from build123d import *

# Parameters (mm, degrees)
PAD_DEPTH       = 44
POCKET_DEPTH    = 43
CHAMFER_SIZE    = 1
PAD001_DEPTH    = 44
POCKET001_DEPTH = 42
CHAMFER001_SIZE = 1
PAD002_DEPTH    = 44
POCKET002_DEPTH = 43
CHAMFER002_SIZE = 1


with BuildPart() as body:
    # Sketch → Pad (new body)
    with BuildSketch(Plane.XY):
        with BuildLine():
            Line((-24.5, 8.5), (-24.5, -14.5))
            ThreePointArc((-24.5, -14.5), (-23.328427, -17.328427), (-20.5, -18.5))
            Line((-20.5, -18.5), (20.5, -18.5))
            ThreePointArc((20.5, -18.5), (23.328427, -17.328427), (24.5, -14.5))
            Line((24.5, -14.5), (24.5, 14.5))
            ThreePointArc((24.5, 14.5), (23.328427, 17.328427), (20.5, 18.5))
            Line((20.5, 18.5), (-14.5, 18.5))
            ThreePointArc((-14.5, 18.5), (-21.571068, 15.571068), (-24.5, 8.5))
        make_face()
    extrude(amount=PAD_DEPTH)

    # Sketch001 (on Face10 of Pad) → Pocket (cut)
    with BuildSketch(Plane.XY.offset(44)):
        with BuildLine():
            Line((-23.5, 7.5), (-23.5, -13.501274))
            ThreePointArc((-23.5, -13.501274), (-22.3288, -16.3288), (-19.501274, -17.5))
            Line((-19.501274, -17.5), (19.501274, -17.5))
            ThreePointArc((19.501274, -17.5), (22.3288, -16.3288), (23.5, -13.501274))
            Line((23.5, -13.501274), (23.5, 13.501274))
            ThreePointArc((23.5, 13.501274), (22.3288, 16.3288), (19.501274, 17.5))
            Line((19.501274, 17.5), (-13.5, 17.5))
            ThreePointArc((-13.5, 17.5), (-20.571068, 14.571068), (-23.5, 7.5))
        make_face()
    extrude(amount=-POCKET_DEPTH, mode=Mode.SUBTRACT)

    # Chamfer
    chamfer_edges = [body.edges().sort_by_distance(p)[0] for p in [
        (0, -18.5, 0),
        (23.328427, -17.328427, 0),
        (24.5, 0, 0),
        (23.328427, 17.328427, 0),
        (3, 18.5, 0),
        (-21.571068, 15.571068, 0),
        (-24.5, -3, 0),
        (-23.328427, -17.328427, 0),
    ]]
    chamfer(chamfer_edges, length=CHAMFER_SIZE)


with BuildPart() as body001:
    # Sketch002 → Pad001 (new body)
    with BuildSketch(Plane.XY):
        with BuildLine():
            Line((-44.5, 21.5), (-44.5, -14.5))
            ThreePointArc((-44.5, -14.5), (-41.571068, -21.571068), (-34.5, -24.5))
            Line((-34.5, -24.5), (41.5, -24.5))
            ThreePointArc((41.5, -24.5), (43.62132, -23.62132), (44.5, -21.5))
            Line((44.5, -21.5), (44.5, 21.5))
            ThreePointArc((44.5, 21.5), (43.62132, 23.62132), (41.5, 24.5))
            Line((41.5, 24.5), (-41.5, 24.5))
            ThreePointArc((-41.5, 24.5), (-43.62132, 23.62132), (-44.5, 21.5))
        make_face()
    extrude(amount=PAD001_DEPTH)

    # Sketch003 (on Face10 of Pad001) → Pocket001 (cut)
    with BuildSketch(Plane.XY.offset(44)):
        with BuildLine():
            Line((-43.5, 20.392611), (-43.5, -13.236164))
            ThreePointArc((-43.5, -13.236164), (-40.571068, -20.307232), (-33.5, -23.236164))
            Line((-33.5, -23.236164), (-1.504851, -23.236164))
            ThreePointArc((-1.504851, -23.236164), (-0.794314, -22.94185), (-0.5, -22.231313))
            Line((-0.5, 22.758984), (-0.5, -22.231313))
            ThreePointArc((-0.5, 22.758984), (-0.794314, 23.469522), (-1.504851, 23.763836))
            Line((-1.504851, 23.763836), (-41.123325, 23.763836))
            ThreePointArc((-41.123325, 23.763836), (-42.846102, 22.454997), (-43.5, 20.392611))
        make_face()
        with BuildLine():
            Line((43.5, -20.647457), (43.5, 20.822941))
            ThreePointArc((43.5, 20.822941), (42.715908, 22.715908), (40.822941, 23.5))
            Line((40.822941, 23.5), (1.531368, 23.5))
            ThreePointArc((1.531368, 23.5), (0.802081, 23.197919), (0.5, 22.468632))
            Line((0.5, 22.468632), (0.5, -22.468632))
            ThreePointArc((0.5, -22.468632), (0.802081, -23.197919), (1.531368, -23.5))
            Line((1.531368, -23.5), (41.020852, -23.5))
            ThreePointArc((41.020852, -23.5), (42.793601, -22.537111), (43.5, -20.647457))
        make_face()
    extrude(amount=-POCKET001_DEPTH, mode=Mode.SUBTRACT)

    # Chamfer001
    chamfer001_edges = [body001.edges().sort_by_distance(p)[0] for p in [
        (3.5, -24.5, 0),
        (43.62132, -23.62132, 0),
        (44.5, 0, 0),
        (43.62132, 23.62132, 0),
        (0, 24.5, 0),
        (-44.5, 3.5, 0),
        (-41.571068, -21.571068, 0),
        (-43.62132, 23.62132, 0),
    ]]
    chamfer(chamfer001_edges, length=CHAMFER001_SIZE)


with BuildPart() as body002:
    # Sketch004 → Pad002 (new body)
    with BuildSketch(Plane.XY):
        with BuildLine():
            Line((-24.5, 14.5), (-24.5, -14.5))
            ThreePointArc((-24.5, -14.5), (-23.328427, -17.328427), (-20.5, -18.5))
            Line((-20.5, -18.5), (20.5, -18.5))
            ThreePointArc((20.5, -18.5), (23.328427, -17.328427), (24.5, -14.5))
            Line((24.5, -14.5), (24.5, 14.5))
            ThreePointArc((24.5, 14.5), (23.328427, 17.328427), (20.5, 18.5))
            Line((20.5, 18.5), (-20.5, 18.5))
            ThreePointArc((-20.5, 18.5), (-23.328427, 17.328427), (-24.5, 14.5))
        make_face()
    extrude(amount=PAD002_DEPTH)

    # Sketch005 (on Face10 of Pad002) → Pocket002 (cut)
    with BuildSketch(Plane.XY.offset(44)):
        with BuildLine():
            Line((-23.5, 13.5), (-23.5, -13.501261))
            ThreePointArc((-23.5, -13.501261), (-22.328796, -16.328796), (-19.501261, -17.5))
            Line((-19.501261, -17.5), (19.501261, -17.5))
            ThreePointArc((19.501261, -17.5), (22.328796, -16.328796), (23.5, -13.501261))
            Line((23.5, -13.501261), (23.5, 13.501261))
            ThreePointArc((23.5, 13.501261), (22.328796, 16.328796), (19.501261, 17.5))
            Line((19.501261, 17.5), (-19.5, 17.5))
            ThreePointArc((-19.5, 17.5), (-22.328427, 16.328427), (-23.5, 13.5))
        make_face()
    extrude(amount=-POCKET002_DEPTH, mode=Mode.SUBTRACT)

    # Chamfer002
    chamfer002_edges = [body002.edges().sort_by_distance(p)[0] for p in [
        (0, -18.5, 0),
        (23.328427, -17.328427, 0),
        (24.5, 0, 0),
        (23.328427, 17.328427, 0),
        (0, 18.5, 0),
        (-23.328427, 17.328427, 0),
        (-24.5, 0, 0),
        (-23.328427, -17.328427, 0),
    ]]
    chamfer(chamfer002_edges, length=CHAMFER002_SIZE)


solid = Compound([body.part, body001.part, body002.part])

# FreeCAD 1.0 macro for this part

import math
import FreeCAD as App
import Part
import Sketcher


def edges_at(feature, points):
    """Names of the edges that pass closest to the given points."""
    edges = feature.Shape.Edges
    near = lambda p: min(range(len(edges)), key=lambda i: edges[i].distToShape(Part.Vertex(*p))[0])
    return sorted({f"Edge{near(p) + 1}" for p in points})

doc = App.newDocument("Part")
body = doc.addObject("PartDesign::Body", "Body")

# Sketch on XY plane
sketch1 = body.newObject("Sketcher::SketchObject", "Sketch")
sketch1.AttachmentSupport = (doc.getObject("XY_Plane"), [""])
sketch1.MapMode = "FlatFace"
sketch1.addGeometry(Part.LineSegment(App.Vector(-24.5, 8.5, 0), App.Vector(-24.5, -14.5, 0)), False)
sketch1.addGeometry(Part.ArcOfCircle(Part.Circle(App.Vector(-20.5, -14.5, 0), App.Vector(0, 0, 1), 4), math.radians(-180), math.radians(-90)), False)
sketch1.addGeometry(Part.LineSegment(App.Vector(-20.5, -18.5, 0), App.Vector(20.5, -18.5, 0)), False)
sketch1.addGeometry(Part.ArcOfCircle(Part.Circle(App.Vector(20.5, -14.5, 0), App.Vector(0, 0, 1), 4), math.radians(-90), math.radians(0)), False)
sketch1.addGeometry(Part.LineSegment(App.Vector(24.5, -14.5, 0), App.Vector(24.5, 14.5, 0)), False)
sketch1.addGeometry(Part.ArcOfCircle(Part.Circle(App.Vector(20.5, 14.5, 0), App.Vector(0, 0, 1), 4), math.radians(0), math.radians(90)), False)
sketch1.addGeometry(Part.LineSegment(App.Vector(20.5, 18.5, 0), App.Vector(-14.5, 18.5, 0)), False)
sketch1.addGeometry(Part.ArcOfCircle(Part.Circle(App.Vector(-14.5, 8.5, 0), App.Vector(0, 0, 1), 10), math.radians(90), math.radians(180)), False)
sketch1.addConstraint(Sketcher.Constraint("Tangent", 0, 2, 1, 1))
sketch1.addConstraint(Sketcher.Constraint("Tangent", 1, 2, 2, 1))
sketch1.addConstraint(Sketcher.Constraint("Tangent", 2, 2, 3, 1))
sketch1.addConstraint(Sketcher.Constraint("Tangent", 3, 2, 4, 1))
sketch1.addConstraint(Sketcher.Constraint("Tangent", 4, 2, 5, 1))
sketch1.addConstraint(Sketcher.Constraint("Tangent", 5, 2, 6, 1))
sketch1.addConstraint(Sketcher.Constraint("Tangent", 6, 2, 7, 1))
sketch1.addConstraint(Sketcher.Constraint("Tangent", 7, 2, 0, 1))
sketch1.addConstraint(Sketcher.Constraint("Vertical", 0))
sketch1.addConstraint(Sketcher.Constraint("Horizontal", 2))
sketch1.addConstraint(Sketcher.Constraint("Vertical", 4))
sketch1.addConstraint(Sketcher.Constraint("Horizontal", 6))
sketch1.addConstraint(Sketcher.Constraint("Equal", 1, 3))
sketch1.addConstraint(Sketcher.Constraint("Equal", 3, 5))
sketch1.addConstraint(Sketcher.Constraint("Symmetric", 1, 3, 5, 3, -1, 1))
sketch1.addConstraint(Sketcher.Constraint("Radius", 1, 4.0))
sketch1.addConstraint(Sketcher.Constraint("Radius", 7, 9.999999))
sketch1.addConstraint(Sketcher.Constraint("DistanceX", 2, 1, 2, 2, 41.0))
sketch1.addConstraint(Sketcher.Constraint("DistanceY", 0, 2, 0, 1, 23.0))
pad1 = body.newObject("PartDesign::Pad", "Pad")
pad1.Profile = sketch1
pad1.Length = 44

# Sketch on XY plane
sketch2 = body.newObject("Sketcher::SketchObject", "Sketch001")
sketch2.AttachmentSupport = (doc.getObject("XY_Plane"), [""])
sketch2.MapMode = "FlatFace"
sketch2.AttachmentOffset = App.Placement(App.Vector(0, 0, 44), App.Rotation())
sketch2.addGeometry(Part.LineSegment(App.Vector(-23.5, 7.5, 0), App.Vector(-23.5, -13.5, 0)), False)
sketch2.addGeometry(Part.ArcOfCircle(Part.Circle(App.Vector(-19.5, -13.5, 0), App.Vector(0, 0, 1), 4), math.radians(-180), math.radians(-90)), False)
sketch2.addGeometry(Part.LineSegment(App.Vector(-19.5, -17.5, 0), App.Vector(19.5, -17.5, 0)), False)
sketch2.addGeometry(Part.ArcOfCircle(Part.Circle(App.Vector(19.5, -13.5, 0), App.Vector(0, 0, 1), 4), math.radians(-90), math.radians(0)), False)
sketch2.addGeometry(Part.LineSegment(App.Vector(23.5, -13.5, 0), App.Vector(23.5, 13.5, 0)), False)
sketch2.addGeometry(Part.ArcOfCircle(Part.Circle(App.Vector(19.5, 13.5, 0), App.Vector(0, 0, 1), 4), math.radians(0), math.radians(90)), False)
sketch2.addGeometry(Part.LineSegment(App.Vector(19.5, 17.5, 0), App.Vector(-13.5, 17.5, 0)), False)
sketch2.addGeometry(Part.ArcOfCircle(Part.Circle(App.Vector(-13.5, 7.5, 0), App.Vector(0, 0, 1), 10), math.radians(90), math.radians(180)), False)
sketch2.addConstraint(Sketcher.Constraint("Tangent", 0, 2, 1, 1))
sketch2.addConstraint(Sketcher.Constraint("Tangent", 1, 2, 2, 1))
sketch2.addConstraint(Sketcher.Constraint("Tangent", 2, 2, 3, 1))
sketch2.addConstraint(Sketcher.Constraint("Tangent", 3, 2, 4, 1))
sketch2.addConstraint(Sketcher.Constraint("Tangent", 4, 2, 5, 1))
sketch2.addConstraint(Sketcher.Constraint("Tangent", 5, 2, 6, 1))
sketch2.addConstraint(Sketcher.Constraint("Tangent", 6, 2, 7, 1))
sketch2.addConstraint(Sketcher.Constraint("Tangent", 7, 2, 0, 1))
sketch2.addConstraint(Sketcher.Constraint("Vertical", 0))
sketch2.addConstraint(Sketcher.Constraint("Horizontal", 2))
sketch2.addConstraint(Sketcher.Constraint("Vertical", 4))
sketch2.addConstraint(Sketcher.Constraint("Horizontal", 6))
sketch2.addConstraint(Sketcher.Constraint("Equal", 1, 3))
sketch2.addConstraint(Sketcher.Constraint("Equal", 3, 5))
sketch2.addConstraint(Sketcher.Constraint("Symmetric", 1, 3, 5, 3, -1, 1))
sketch2.addConstraint(Sketcher.Constraint("Radius", 7, 9.999999))
sketch2.addConstraint(Sketcher.Constraint("DistanceY", 1, 2, 7, 3, 25.000001))
sketch2.addConstraint(Sketcher.Constraint("DistanceX", 7, 3, 3, 2, 37.000001))
sketch2.addConstraint(Sketcher.Constraint("Radius", 1, 3.998727))
pocket1 = body.newObject("PartDesign::Pocket", "Pocket")
pocket1.Profile = sketch2
pocket1.Length = 43
doc.recompute()

chamfer = body.newObject("PartDesign::Chamfer", "Chamfer")
chamfer.Base = (pocket1, edges_at(pocket1, [
    (0, -18.5, 0),
    (23.328, -17.328, 0),
    (24.5, 0, 0),
    (23.328, 17.328, 0),
    (3, 18.5, 0),
    (-21.571, 15.571, 0),
    (-24.5, -3, 0),
    (-23.328, -17.328, 0),
]))
chamfer.Size = 1
body2 = doc.addObject("PartDesign::Body", "Body001")

# Sketch on XY plane
sketch3 = body2.newObject("Sketcher::SketchObject", "Sketch002")
sketch3.AttachmentSupport = (doc.getObject("XY_Plane001"), [""])
sketch3.MapMode = "FlatFace"
sketch3.addGeometry(Part.LineSegment(App.Vector(-44.5, 21.5, 0), App.Vector(-44.5, -14.5, 0)), False)
sketch3.addGeometry(Part.ArcOfCircle(Part.Circle(App.Vector(-34.5, -14.5, 0), App.Vector(0, 0, 1), 10), math.radians(180), math.radians(270)), False)
sketch3.addGeometry(Part.LineSegment(App.Vector(-34.5, -24.5, 0), App.Vector(41.5, -24.5, 0)), False)
sketch3.addGeometry(Part.ArcOfCircle(Part.Circle(App.Vector(41.5, -21.5, 0), App.Vector(0, 0, 1), 3), math.radians(-90), math.radians(0)), False)
sketch3.addGeometry(Part.LineSegment(App.Vector(44.5, -21.5, 0), App.Vector(44.5, 21.5, 0)), False)
sketch3.addGeometry(Part.ArcOfCircle(Part.Circle(App.Vector(41.5, 21.5, 0), App.Vector(0, 0, 1), 3), math.radians(0), math.radians(90)), False)
sketch3.addGeometry(Part.LineSegment(App.Vector(41.5, 24.5, 0), App.Vector(-41.5, 24.5, 0)), False)
sketch3.addGeometry(Part.ArcOfCircle(Part.Circle(App.Vector(-41.5, 21.5, 0), App.Vector(0, 0, 1), 3), math.radians(90), math.radians(180)), False)
sketch3.addConstraint(Sketcher.Constraint("Tangent", 0, 2, 1, 1))
sketch3.addConstraint(Sketcher.Constraint("Tangent", 1, 2, 2, 1))
sketch3.addConstraint(Sketcher.Constraint("Tangent", 2, 2, 3, 1))
sketch3.addConstraint(Sketcher.Constraint("Tangent", 3, 2, 4, 1))
sketch3.addConstraint(Sketcher.Constraint("Tangent", 4, 2, 5, 1))
sketch3.addConstraint(Sketcher.Constraint("Tangent", 5, 2, 6, 1))
sketch3.addConstraint(Sketcher.Constraint("Tangent", 6, 2, 7, 1))
sketch3.addConstraint(Sketcher.Constraint("Tangent", 7, 2, 0, 1))
sketch3.addConstraint(Sketcher.Constraint("Vertical", 0))
sketch3.addConstraint(Sketcher.Constraint("Horizontal", 2))
sketch3.addConstraint(Sketcher.Constraint("Vertical", 4))
sketch3.addConstraint(Sketcher.Constraint("Horizontal", 6))
sketch3.addConstraint(Sketcher.Constraint("Equal", 3, 5))
sketch3.addConstraint(Sketcher.Constraint("Equal", 5, 7))
sketch3.addConstraint(Sketcher.Constraint("Symmetric", 3, 3, 7, 3, -1, 1))
sketch3.addConstraint(Sketcher.Constraint("Radius", 1, 9.999999))
sketch3.addConstraint(Sketcher.Constraint("Radius", 3, 3.000001))
sketch3.addConstraint(Sketcher.Constraint("DistanceX", 2, 1, 2, 2, 76.0))
sketch3.addConstraint(Sketcher.Constraint("DistanceY", 0, 2, 0, 1, 36.0))
pad2 = body2.newObject("PartDesign::Pad", "Pad001")
pad2.Profile = sketch3
pad2.Length = 44

# Sketch on XY plane
sketch4 = body2.newObject("Sketcher::SketchObject", "Sketch003")
sketch4.AttachmentSupport = (doc.getObject("XY_Plane001"), [""])
sketch4.MapMode = "FlatFace"
sketch4.AttachmentOffset = App.Placement(App.Vector(0, 0, 44), App.Rotation())
sketch4.addGeometry(Part.LineSegment(App.Vector(-43.5, 20.4, 0), App.Vector(-43.5, -13.2, 0)), False)
sketch4.addGeometry(Part.ArcOfCircle(Part.Circle(App.Vector(-33.5, -13.2, 0), App.Vector(0, 0, 1), 10), math.radians(180), math.radians(270)), False)
sketch4.addGeometry(Part.LineSegment(App.Vector(-33.5, -23.2, 0), App.Vector(-1.5, -23.2, 0)), False)
sketch4.addGeometry(Part.ArcOfCircle(Part.Circle(App.Vector(-1.5, -22.2, 0), App.Vector(0, 0, 1), 1), math.radians(-90), math.radians(0)), False)
sketch4.addGeometry(Part.LineSegment(App.Vector(-0.5, -22.2, 0), App.Vector(-0.5, 22.8, 0)), False)
sketch4.addGeometry(Part.ArcOfCircle(Part.Circle(App.Vector(-1.5, 22.8, 0), App.Vector(0, 0, 1), 1), math.radians(0), math.radians(90)), False)
sketch4.addGeometry(Part.LineSegment(App.Vector(-1.5, 23.8, 0), App.Vector(-41.1, 23.8, 0)), False)
sketch4.addGeometry(Part.ArcOfCircle(Part.Circle(App.Vector(-39.9, 20.4, 0), App.Vector(0, 0, 1), 3.6), math.radians(110), math.radians(180)), False)
sketch4.addGeometry(Part.LineSegment(App.Vector(43.5, -20.6, 0), App.Vector(43.5, 20.8, 0)), False)
sketch4.addGeometry(Part.ArcOfCircle(Part.Circle(App.Vector(40.8, 20.8, 0), App.Vector(0, 0, 1), 2.7), math.radians(0), math.radians(90)), False)
sketch4.addGeometry(Part.LineSegment(App.Vector(40.8, 23.5, 0), App.Vector(1.5, 23.5, 0)), False)
sketch4.addGeometry(Part.ArcOfCircle(Part.Circle(App.Vector(1.5, 22.5, 0), App.Vector(0, 0, 1), 1), math.radians(90), math.radians(180)), False)
sketch4.addGeometry(Part.LineSegment(App.Vector(0.5, 22.5, 0), App.Vector(0.5, -22.5, 0)), False)
sketch4.addGeometry(Part.ArcOfCircle(Part.Circle(App.Vector(1.5, -22.5, 0), App.Vector(0, 0, 1), 1), math.radians(-180), math.radians(-90)), False)
sketch4.addGeometry(Part.LineSegment(App.Vector(1.5, -23.5, 0), App.Vector(41, -23.5, 0)), False)
sketch4.addGeometry(Part.ArcOfCircle(Part.Circle(App.Vector(40.6, -20.6, 0), App.Vector(0, 0, 1), 2.9), math.radians(-82), math.radians(0)), False)
sketch4.addConstraint(Sketcher.Constraint("Tangent", 0, 2, 1, 1))
sketch4.addConstraint(Sketcher.Constraint("Tangent", 1, 2, 2, 1))
sketch4.addConstraint(Sketcher.Constraint("Tangent", 2, 2, 3, 1))
sketch4.addConstraint(Sketcher.Constraint("Tangent", 3, 2, 4, 1))
sketch4.addConstraint(Sketcher.Constraint("Tangent", 4, 2, 5, 1))
sketch4.addConstraint(Sketcher.Constraint("Tangent", 5, 2, 6, 1))
sketch4.addConstraint(Sketcher.Constraint("Coincident", 6, 2, 7, 1))
sketch4.addConstraint(Sketcher.Constraint("Tangent", 7, 2, 0, 1))
sketch4.addConstraint(Sketcher.Constraint("Tangent", 8, 2, 9, 1))
sketch4.addConstraint(Sketcher.Constraint("Tangent", 9, 2, 10, 1))
sketch4.addConstraint(Sketcher.Constraint("Tangent", 10, 2, 11, 1))
sketch4.addConstraint(Sketcher.Constraint("Tangent", 11, 2, 12, 1))
sketch4.addConstraint(Sketcher.Constraint("Tangent", 12, 2, 13, 1))
sketch4.addConstraint(Sketcher.Constraint("Tangent", 13, 2, 14, 1))
sketch4.addConstraint(Sketcher.Constraint("Coincident", 14, 2, 15, 1))
sketch4.addConstraint(Sketcher.Constraint("Tangent", 15, 2, 8, 1))
sketch4.addConstraint(Sketcher.Constraint("Vertical", 0))
sketch4.addConstraint(Sketcher.Constraint("Horizontal", 2))
sketch4.addConstraint(Sketcher.Constraint("Vertical", 4))
sketch4.addConstraint(Sketcher.Constraint("Horizontal", 6))
sketch4.addConstraint(Sketcher.Constraint("Vertical", 8))
sketch4.addConstraint(Sketcher.Constraint("Horizontal", 10))
sketch4.addConstraint(Sketcher.Constraint("Vertical", 12))
sketch4.addConstraint(Sketcher.Constraint("Horizontal", 14))
sketch4.addConstraint(Sketcher.Constraint("Equal", 3, 5))
sketch4.addConstraint(Sketcher.Constraint("Equal", 11, 13))
sketch4.addConstraint(Sketcher.Constraint("Radius", 1, 9.999999))
sketch4.addConstraint(Sketcher.Constraint("DistanceX", 1, 2, 3, 2, 33.0))
sketch4.addConstraint(Sketcher.Constraint("DistanceY", 0, 2, 6, 2, 37.0))
sketch4.addConstraint(Sketcher.Constraint("DistanceX", 4, 2, 8, 2, 44.0))
sketch4.addConstraint(Sketcher.Constraint("DistanceX", 4, 2, 11, 2, 1.0))
sketch4.addConstraint(Sketcher.Constraint("DistanceX", 1, 3, -1, 1, 33.500001))
sketch4.addConstraint(Sketcher.Constraint("DistanceY", -1, 1, 9, 2, 23.5))
sketch4.addConstraint(Sketcher.Constraint("DistanceY", 13, 2, -1, 1, 23.5))
sketch4.addConstraint(Sketcher.Constraint("Radius", 3, 1.004851))
sketch4.addConstraint(Sketcher.Constraint("Radius", 11, 1.031369))
sketch4.addConstraint(Sketcher.Constraint("DistanceY", 8, 1, 8, 2, 41.470398))
sketch4.addConstraint(Sketcher.Constraint("Radius", 7, 3.579314))
sketch4.addConstraint(Sketcher.Constraint("Radius", 9, 2.677058))
sketch4.addConstraint(Sketcher.Constraint("Radius", 15, 2.880663))
sketch4.addConstraint(Sketcher.Constraint("DistanceX", 6, 2, 6, 1, 39.618474))
sketch4.addConstraint(Sketcher.Constraint("DistanceY", -1, 1, 7, 2, 20.392611))
pocket2 = body2.newObject("PartDesign::Pocket", "Pocket001")
pocket2.Profile = sketch4
pocket2.Length = 42
doc.recompute()

chamfer2 = body2.newObject("PartDesign::Chamfer", "Chamfer001")
chamfer2.Base = (pocket2, edges_at(pocket2, [
    (3.5, -24.5, 0),
    (43.621, -23.621, 0),
    (44.5, 0, 0),
    (43.621, 23.621, 0),
    (0, 24.5, 0),
    (-44.5, 3.5, 0),
    (-41.571, -21.571, 0),
    (-43.621, 23.621, 0),
]))
chamfer2.Size = 1
body3 = doc.addObject("PartDesign::Body", "Body002")

# Sketch on XY plane
sketch5 = body3.newObject("Sketcher::SketchObject", "Sketch004")
sketch5.AttachmentSupport = (doc.getObject("XY_Plane002"), [""])
sketch5.MapMode = "FlatFace"
sketch5.addGeometry(Part.LineSegment(App.Vector(-24.5, 14.5, 0), App.Vector(-24.5, -14.5, 0)), False)
sketch5.addGeometry(Part.ArcOfCircle(Part.Circle(App.Vector(-20.5, -14.5, 0), App.Vector(0, 0, 1), 4), math.radians(-180), math.radians(-90)), False)
sketch5.addGeometry(Part.LineSegment(App.Vector(-20.5, -18.5, 0), App.Vector(20.5, -18.5, 0)), False)
sketch5.addGeometry(Part.ArcOfCircle(Part.Circle(App.Vector(20.5, -14.5, 0), App.Vector(0, 0, 1), 4), math.radians(-90), math.radians(0)), False)
sketch5.addGeometry(Part.LineSegment(App.Vector(24.5, -14.5, 0), App.Vector(24.5, 14.5, 0)), False)
sketch5.addGeometry(Part.ArcOfCircle(Part.Circle(App.Vector(20.5, 14.5, 0), App.Vector(0, 0, 1), 4), math.radians(0), math.radians(90)), False)
sketch5.addGeometry(Part.LineSegment(App.Vector(20.5, 18.5, 0), App.Vector(-20.5, 18.5, 0)), False)
sketch5.addGeometry(Part.ArcOfCircle(Part.Circle(App.Vector(-20.5, 14.5, 0), App.Vector(0, 0, 1), 4), math.radians(90), math.radians(180)), False)
sketch5.addConstraint(Sketcher.Constraint("Tangent", 0, 2, 1, 1))
sketch5.addConstraint(Sketcher.Constraint("Tangent", 1, 2, 2, 1))
sketch5.addConstraint(Sketcher.Constraint("Tangent", 2, 2, 3, 1))
sketch5.addConstraint(Sketcher.Constraint("Tangent", 3, 2, 4, 1))
sketch5.addConstraint(Sketcher.Constraint("Tangent", 4, 2, 5, 1))
sketch5.addConstraint(Sketcher.Constraint("Tangent", 5, 2, 6, 1))
sketch5.addConstraint(Sketcher.Constraint("Tangent", 6, 2, 7, 1))
sketch5.addConstraint(Sketcher.Constraint("Tangent", 7, 2, 0, 1))
sketch5.addConstraint(Sketcher.Constraint("Vertical", 0))
sketch5.addConstraint(Sketcher.Constraint("Horizontal", 2))
sketch5.addConstraint(Sketcher.Constraint("Vertical", 4))
sketch5.addConstraint(Sketcher.Constraint("Horizontal", 6))
sketch5.addConstraint(Sketcher.Constraint("Equal", 1, 3))
sketch5.addConstraint(Sketcher.Constraint("Equal", 3, 5))
sketch5.addConstraint(Sketcher.Constraint("Equal", 5, 7))
sketch5.addConstraint(Sketcher.Constraint("Symmetric", 1, 3, 5, 3, -1, 1))
sketch5.addConstraint(Sketcher.Constraint("Radius", 1, 4.0))
sketch5.addConstraint(Sketcher.Constraint("DistanceX", 2, 1, 2, 2, 41.0))
sketch5.addConstraint(Sketcher.Constraint("DistanceY", 0, 2, 0, 1, 29.0))
pad3 = body3.newObject("PartDesign::Pad", "Pad002")
pad3.Profile = sketch5
pad3.Length = 44

# Sketch on XY plane
sketch6 = body3.newObject("Sketcher::SketchObject", "Sketch005")
sketch6.AttachmentSupport = (doc.getObject("XY_Plane002"), [""])
sketch6.MapMode = "FlatFace"
sketch6.AttachmentOffset = App.Placement(App.Vector(0, 0, 44), App.Rotation())
sketch6.addGeometry(Part.LineSegment(App.Vector(-23.5, 13.5, 0), App.Vector(-23.5, -13.5, 0)), False)
sketch6.addGeometry(Part.ArcOfCircle(Part.Circle(App.Vector(-19.5, -13.5, 0), App.Vector(0, 0, 1), 4), math.radians(-180), math.radians(-90)), False)
sketch6.addGeometry(Part.LineSegment(App.Vector(-19.5, -17.5, 0), App.Vector(19.5, -17.5, 0)), False)
sketch6.addGeometry(Part.ArcOfCircle(Part.Circle(App.Vector(19.5, -13.5, 0), App.Vector(0, 0, 1), 4), math.radians(-90), math.radians(0)), False)
sketch6.addGeometry(Part.LineSegment(App.Vector(23.5, -13.5, 0), App.Vector(23.5, 13.5, 0)), False)
sketch6.addGeometry(Part.ArcOfCircle(Part.Circle(App.Vector(19.5, 13.5, 0), App.Vector(0, 0, 1), 4), math.radians(0), math.radians(90)), False)
sketch6.addGeometry(Part.LineSegment(App.Vector(19.5, 17.5, 0), App.Vector(-19.5, 17.5, 0)), False)
sketch6.addGeometry(Part.ArcOfCircle(Part.Circle(App.Vector(-19.5, 13.5, 0), App.Vector(0, 0, 1), 4), math.radians(90), math.radians(180)), False)
sketch6.addConstraint(Sketcher.Constraint("Tangent", 0, 2, 1, 1))
sketch6.addConstraint(Sketcher.Constraint("Tangent", 1, 2, 2, 1))
sketch6.addConstraint(Sketcher.Constraint("Tangent", 2, 2, 3, 1))
sketch6.addConstraint(Sketcher.Constraint("Tangent", 3, 2, 4, 1))
sketch6.addConstraint(Sketcher.Constraint("Tangent", 4, 2, 5, 1))
sketch6.addConstraint(Sketcher.Constraint("Tangent", 5, 2, 6, 1))
sketch6.addConstraint(Sketcher.Constraint("Tangent", 6, 2, 7, 1))
sketch6.addConstraint(Sketcher.Constraint("Tangent", 7, 2, 0, 1))
sketch6.addConstraint(Sketcher.Constraint("Vertical", 0))
sketch6.addConstraint(Sketcher.Constraint("Horizontal", 2))
sketch6.addConstraint(Sketcher.Constraint("Vertical", 4))
sketch6.addConstraint(Sketcher.Constraint("Horizontal", 6))
sketch6.addConstraint(Sketcher.Constraint("Equal", 1, 3))
sketch6.addConstraint(Sketcher.Constraint("Equal", 3, 5))
sketch6.addConstraint(Sketcher.Constraint("Symmetric", 1, 3, 5, 3, -1, 1))
sketch6.addConstraint(Sketcher.Constraint("Radius", 7, 4.0))
sketch6.addConstraint(Sketcher.Constraint("DistanceY", 1, 2, 7, 3, 31.0))
sketch6.addConstraint(Sketcher.Constraint("DistanceX", 7, 3, 4, 2, 43.0))
sketch6.addConstraint(Sketcher.Constraint("Radius", 1, 3.998741))
pocket3 = body3.newObject("PartDesign::Pocket", "Pocket002")
pocket3.Profile = sketch6
pocket3.Length = 43
doc.recompute()

chamfer3 = body3.newObject("PartDesign::Chamfer", "Chamfer002")
chamfer3.Base = (pocket3, edges_at(pocket3, [
    (0, -18.5, 0),
    (23.328, -17.328, 0),
    (24.5, 0, 0),
    (23.328, 17.328, 0),
    (0, 18.5, 0),
    (-23.328, 17.328, 0),
    (-24.5, 0, 0),
    (-23.328, -17.328, 0),
]))
chamfer3.Size = 1

doc.recompute()
